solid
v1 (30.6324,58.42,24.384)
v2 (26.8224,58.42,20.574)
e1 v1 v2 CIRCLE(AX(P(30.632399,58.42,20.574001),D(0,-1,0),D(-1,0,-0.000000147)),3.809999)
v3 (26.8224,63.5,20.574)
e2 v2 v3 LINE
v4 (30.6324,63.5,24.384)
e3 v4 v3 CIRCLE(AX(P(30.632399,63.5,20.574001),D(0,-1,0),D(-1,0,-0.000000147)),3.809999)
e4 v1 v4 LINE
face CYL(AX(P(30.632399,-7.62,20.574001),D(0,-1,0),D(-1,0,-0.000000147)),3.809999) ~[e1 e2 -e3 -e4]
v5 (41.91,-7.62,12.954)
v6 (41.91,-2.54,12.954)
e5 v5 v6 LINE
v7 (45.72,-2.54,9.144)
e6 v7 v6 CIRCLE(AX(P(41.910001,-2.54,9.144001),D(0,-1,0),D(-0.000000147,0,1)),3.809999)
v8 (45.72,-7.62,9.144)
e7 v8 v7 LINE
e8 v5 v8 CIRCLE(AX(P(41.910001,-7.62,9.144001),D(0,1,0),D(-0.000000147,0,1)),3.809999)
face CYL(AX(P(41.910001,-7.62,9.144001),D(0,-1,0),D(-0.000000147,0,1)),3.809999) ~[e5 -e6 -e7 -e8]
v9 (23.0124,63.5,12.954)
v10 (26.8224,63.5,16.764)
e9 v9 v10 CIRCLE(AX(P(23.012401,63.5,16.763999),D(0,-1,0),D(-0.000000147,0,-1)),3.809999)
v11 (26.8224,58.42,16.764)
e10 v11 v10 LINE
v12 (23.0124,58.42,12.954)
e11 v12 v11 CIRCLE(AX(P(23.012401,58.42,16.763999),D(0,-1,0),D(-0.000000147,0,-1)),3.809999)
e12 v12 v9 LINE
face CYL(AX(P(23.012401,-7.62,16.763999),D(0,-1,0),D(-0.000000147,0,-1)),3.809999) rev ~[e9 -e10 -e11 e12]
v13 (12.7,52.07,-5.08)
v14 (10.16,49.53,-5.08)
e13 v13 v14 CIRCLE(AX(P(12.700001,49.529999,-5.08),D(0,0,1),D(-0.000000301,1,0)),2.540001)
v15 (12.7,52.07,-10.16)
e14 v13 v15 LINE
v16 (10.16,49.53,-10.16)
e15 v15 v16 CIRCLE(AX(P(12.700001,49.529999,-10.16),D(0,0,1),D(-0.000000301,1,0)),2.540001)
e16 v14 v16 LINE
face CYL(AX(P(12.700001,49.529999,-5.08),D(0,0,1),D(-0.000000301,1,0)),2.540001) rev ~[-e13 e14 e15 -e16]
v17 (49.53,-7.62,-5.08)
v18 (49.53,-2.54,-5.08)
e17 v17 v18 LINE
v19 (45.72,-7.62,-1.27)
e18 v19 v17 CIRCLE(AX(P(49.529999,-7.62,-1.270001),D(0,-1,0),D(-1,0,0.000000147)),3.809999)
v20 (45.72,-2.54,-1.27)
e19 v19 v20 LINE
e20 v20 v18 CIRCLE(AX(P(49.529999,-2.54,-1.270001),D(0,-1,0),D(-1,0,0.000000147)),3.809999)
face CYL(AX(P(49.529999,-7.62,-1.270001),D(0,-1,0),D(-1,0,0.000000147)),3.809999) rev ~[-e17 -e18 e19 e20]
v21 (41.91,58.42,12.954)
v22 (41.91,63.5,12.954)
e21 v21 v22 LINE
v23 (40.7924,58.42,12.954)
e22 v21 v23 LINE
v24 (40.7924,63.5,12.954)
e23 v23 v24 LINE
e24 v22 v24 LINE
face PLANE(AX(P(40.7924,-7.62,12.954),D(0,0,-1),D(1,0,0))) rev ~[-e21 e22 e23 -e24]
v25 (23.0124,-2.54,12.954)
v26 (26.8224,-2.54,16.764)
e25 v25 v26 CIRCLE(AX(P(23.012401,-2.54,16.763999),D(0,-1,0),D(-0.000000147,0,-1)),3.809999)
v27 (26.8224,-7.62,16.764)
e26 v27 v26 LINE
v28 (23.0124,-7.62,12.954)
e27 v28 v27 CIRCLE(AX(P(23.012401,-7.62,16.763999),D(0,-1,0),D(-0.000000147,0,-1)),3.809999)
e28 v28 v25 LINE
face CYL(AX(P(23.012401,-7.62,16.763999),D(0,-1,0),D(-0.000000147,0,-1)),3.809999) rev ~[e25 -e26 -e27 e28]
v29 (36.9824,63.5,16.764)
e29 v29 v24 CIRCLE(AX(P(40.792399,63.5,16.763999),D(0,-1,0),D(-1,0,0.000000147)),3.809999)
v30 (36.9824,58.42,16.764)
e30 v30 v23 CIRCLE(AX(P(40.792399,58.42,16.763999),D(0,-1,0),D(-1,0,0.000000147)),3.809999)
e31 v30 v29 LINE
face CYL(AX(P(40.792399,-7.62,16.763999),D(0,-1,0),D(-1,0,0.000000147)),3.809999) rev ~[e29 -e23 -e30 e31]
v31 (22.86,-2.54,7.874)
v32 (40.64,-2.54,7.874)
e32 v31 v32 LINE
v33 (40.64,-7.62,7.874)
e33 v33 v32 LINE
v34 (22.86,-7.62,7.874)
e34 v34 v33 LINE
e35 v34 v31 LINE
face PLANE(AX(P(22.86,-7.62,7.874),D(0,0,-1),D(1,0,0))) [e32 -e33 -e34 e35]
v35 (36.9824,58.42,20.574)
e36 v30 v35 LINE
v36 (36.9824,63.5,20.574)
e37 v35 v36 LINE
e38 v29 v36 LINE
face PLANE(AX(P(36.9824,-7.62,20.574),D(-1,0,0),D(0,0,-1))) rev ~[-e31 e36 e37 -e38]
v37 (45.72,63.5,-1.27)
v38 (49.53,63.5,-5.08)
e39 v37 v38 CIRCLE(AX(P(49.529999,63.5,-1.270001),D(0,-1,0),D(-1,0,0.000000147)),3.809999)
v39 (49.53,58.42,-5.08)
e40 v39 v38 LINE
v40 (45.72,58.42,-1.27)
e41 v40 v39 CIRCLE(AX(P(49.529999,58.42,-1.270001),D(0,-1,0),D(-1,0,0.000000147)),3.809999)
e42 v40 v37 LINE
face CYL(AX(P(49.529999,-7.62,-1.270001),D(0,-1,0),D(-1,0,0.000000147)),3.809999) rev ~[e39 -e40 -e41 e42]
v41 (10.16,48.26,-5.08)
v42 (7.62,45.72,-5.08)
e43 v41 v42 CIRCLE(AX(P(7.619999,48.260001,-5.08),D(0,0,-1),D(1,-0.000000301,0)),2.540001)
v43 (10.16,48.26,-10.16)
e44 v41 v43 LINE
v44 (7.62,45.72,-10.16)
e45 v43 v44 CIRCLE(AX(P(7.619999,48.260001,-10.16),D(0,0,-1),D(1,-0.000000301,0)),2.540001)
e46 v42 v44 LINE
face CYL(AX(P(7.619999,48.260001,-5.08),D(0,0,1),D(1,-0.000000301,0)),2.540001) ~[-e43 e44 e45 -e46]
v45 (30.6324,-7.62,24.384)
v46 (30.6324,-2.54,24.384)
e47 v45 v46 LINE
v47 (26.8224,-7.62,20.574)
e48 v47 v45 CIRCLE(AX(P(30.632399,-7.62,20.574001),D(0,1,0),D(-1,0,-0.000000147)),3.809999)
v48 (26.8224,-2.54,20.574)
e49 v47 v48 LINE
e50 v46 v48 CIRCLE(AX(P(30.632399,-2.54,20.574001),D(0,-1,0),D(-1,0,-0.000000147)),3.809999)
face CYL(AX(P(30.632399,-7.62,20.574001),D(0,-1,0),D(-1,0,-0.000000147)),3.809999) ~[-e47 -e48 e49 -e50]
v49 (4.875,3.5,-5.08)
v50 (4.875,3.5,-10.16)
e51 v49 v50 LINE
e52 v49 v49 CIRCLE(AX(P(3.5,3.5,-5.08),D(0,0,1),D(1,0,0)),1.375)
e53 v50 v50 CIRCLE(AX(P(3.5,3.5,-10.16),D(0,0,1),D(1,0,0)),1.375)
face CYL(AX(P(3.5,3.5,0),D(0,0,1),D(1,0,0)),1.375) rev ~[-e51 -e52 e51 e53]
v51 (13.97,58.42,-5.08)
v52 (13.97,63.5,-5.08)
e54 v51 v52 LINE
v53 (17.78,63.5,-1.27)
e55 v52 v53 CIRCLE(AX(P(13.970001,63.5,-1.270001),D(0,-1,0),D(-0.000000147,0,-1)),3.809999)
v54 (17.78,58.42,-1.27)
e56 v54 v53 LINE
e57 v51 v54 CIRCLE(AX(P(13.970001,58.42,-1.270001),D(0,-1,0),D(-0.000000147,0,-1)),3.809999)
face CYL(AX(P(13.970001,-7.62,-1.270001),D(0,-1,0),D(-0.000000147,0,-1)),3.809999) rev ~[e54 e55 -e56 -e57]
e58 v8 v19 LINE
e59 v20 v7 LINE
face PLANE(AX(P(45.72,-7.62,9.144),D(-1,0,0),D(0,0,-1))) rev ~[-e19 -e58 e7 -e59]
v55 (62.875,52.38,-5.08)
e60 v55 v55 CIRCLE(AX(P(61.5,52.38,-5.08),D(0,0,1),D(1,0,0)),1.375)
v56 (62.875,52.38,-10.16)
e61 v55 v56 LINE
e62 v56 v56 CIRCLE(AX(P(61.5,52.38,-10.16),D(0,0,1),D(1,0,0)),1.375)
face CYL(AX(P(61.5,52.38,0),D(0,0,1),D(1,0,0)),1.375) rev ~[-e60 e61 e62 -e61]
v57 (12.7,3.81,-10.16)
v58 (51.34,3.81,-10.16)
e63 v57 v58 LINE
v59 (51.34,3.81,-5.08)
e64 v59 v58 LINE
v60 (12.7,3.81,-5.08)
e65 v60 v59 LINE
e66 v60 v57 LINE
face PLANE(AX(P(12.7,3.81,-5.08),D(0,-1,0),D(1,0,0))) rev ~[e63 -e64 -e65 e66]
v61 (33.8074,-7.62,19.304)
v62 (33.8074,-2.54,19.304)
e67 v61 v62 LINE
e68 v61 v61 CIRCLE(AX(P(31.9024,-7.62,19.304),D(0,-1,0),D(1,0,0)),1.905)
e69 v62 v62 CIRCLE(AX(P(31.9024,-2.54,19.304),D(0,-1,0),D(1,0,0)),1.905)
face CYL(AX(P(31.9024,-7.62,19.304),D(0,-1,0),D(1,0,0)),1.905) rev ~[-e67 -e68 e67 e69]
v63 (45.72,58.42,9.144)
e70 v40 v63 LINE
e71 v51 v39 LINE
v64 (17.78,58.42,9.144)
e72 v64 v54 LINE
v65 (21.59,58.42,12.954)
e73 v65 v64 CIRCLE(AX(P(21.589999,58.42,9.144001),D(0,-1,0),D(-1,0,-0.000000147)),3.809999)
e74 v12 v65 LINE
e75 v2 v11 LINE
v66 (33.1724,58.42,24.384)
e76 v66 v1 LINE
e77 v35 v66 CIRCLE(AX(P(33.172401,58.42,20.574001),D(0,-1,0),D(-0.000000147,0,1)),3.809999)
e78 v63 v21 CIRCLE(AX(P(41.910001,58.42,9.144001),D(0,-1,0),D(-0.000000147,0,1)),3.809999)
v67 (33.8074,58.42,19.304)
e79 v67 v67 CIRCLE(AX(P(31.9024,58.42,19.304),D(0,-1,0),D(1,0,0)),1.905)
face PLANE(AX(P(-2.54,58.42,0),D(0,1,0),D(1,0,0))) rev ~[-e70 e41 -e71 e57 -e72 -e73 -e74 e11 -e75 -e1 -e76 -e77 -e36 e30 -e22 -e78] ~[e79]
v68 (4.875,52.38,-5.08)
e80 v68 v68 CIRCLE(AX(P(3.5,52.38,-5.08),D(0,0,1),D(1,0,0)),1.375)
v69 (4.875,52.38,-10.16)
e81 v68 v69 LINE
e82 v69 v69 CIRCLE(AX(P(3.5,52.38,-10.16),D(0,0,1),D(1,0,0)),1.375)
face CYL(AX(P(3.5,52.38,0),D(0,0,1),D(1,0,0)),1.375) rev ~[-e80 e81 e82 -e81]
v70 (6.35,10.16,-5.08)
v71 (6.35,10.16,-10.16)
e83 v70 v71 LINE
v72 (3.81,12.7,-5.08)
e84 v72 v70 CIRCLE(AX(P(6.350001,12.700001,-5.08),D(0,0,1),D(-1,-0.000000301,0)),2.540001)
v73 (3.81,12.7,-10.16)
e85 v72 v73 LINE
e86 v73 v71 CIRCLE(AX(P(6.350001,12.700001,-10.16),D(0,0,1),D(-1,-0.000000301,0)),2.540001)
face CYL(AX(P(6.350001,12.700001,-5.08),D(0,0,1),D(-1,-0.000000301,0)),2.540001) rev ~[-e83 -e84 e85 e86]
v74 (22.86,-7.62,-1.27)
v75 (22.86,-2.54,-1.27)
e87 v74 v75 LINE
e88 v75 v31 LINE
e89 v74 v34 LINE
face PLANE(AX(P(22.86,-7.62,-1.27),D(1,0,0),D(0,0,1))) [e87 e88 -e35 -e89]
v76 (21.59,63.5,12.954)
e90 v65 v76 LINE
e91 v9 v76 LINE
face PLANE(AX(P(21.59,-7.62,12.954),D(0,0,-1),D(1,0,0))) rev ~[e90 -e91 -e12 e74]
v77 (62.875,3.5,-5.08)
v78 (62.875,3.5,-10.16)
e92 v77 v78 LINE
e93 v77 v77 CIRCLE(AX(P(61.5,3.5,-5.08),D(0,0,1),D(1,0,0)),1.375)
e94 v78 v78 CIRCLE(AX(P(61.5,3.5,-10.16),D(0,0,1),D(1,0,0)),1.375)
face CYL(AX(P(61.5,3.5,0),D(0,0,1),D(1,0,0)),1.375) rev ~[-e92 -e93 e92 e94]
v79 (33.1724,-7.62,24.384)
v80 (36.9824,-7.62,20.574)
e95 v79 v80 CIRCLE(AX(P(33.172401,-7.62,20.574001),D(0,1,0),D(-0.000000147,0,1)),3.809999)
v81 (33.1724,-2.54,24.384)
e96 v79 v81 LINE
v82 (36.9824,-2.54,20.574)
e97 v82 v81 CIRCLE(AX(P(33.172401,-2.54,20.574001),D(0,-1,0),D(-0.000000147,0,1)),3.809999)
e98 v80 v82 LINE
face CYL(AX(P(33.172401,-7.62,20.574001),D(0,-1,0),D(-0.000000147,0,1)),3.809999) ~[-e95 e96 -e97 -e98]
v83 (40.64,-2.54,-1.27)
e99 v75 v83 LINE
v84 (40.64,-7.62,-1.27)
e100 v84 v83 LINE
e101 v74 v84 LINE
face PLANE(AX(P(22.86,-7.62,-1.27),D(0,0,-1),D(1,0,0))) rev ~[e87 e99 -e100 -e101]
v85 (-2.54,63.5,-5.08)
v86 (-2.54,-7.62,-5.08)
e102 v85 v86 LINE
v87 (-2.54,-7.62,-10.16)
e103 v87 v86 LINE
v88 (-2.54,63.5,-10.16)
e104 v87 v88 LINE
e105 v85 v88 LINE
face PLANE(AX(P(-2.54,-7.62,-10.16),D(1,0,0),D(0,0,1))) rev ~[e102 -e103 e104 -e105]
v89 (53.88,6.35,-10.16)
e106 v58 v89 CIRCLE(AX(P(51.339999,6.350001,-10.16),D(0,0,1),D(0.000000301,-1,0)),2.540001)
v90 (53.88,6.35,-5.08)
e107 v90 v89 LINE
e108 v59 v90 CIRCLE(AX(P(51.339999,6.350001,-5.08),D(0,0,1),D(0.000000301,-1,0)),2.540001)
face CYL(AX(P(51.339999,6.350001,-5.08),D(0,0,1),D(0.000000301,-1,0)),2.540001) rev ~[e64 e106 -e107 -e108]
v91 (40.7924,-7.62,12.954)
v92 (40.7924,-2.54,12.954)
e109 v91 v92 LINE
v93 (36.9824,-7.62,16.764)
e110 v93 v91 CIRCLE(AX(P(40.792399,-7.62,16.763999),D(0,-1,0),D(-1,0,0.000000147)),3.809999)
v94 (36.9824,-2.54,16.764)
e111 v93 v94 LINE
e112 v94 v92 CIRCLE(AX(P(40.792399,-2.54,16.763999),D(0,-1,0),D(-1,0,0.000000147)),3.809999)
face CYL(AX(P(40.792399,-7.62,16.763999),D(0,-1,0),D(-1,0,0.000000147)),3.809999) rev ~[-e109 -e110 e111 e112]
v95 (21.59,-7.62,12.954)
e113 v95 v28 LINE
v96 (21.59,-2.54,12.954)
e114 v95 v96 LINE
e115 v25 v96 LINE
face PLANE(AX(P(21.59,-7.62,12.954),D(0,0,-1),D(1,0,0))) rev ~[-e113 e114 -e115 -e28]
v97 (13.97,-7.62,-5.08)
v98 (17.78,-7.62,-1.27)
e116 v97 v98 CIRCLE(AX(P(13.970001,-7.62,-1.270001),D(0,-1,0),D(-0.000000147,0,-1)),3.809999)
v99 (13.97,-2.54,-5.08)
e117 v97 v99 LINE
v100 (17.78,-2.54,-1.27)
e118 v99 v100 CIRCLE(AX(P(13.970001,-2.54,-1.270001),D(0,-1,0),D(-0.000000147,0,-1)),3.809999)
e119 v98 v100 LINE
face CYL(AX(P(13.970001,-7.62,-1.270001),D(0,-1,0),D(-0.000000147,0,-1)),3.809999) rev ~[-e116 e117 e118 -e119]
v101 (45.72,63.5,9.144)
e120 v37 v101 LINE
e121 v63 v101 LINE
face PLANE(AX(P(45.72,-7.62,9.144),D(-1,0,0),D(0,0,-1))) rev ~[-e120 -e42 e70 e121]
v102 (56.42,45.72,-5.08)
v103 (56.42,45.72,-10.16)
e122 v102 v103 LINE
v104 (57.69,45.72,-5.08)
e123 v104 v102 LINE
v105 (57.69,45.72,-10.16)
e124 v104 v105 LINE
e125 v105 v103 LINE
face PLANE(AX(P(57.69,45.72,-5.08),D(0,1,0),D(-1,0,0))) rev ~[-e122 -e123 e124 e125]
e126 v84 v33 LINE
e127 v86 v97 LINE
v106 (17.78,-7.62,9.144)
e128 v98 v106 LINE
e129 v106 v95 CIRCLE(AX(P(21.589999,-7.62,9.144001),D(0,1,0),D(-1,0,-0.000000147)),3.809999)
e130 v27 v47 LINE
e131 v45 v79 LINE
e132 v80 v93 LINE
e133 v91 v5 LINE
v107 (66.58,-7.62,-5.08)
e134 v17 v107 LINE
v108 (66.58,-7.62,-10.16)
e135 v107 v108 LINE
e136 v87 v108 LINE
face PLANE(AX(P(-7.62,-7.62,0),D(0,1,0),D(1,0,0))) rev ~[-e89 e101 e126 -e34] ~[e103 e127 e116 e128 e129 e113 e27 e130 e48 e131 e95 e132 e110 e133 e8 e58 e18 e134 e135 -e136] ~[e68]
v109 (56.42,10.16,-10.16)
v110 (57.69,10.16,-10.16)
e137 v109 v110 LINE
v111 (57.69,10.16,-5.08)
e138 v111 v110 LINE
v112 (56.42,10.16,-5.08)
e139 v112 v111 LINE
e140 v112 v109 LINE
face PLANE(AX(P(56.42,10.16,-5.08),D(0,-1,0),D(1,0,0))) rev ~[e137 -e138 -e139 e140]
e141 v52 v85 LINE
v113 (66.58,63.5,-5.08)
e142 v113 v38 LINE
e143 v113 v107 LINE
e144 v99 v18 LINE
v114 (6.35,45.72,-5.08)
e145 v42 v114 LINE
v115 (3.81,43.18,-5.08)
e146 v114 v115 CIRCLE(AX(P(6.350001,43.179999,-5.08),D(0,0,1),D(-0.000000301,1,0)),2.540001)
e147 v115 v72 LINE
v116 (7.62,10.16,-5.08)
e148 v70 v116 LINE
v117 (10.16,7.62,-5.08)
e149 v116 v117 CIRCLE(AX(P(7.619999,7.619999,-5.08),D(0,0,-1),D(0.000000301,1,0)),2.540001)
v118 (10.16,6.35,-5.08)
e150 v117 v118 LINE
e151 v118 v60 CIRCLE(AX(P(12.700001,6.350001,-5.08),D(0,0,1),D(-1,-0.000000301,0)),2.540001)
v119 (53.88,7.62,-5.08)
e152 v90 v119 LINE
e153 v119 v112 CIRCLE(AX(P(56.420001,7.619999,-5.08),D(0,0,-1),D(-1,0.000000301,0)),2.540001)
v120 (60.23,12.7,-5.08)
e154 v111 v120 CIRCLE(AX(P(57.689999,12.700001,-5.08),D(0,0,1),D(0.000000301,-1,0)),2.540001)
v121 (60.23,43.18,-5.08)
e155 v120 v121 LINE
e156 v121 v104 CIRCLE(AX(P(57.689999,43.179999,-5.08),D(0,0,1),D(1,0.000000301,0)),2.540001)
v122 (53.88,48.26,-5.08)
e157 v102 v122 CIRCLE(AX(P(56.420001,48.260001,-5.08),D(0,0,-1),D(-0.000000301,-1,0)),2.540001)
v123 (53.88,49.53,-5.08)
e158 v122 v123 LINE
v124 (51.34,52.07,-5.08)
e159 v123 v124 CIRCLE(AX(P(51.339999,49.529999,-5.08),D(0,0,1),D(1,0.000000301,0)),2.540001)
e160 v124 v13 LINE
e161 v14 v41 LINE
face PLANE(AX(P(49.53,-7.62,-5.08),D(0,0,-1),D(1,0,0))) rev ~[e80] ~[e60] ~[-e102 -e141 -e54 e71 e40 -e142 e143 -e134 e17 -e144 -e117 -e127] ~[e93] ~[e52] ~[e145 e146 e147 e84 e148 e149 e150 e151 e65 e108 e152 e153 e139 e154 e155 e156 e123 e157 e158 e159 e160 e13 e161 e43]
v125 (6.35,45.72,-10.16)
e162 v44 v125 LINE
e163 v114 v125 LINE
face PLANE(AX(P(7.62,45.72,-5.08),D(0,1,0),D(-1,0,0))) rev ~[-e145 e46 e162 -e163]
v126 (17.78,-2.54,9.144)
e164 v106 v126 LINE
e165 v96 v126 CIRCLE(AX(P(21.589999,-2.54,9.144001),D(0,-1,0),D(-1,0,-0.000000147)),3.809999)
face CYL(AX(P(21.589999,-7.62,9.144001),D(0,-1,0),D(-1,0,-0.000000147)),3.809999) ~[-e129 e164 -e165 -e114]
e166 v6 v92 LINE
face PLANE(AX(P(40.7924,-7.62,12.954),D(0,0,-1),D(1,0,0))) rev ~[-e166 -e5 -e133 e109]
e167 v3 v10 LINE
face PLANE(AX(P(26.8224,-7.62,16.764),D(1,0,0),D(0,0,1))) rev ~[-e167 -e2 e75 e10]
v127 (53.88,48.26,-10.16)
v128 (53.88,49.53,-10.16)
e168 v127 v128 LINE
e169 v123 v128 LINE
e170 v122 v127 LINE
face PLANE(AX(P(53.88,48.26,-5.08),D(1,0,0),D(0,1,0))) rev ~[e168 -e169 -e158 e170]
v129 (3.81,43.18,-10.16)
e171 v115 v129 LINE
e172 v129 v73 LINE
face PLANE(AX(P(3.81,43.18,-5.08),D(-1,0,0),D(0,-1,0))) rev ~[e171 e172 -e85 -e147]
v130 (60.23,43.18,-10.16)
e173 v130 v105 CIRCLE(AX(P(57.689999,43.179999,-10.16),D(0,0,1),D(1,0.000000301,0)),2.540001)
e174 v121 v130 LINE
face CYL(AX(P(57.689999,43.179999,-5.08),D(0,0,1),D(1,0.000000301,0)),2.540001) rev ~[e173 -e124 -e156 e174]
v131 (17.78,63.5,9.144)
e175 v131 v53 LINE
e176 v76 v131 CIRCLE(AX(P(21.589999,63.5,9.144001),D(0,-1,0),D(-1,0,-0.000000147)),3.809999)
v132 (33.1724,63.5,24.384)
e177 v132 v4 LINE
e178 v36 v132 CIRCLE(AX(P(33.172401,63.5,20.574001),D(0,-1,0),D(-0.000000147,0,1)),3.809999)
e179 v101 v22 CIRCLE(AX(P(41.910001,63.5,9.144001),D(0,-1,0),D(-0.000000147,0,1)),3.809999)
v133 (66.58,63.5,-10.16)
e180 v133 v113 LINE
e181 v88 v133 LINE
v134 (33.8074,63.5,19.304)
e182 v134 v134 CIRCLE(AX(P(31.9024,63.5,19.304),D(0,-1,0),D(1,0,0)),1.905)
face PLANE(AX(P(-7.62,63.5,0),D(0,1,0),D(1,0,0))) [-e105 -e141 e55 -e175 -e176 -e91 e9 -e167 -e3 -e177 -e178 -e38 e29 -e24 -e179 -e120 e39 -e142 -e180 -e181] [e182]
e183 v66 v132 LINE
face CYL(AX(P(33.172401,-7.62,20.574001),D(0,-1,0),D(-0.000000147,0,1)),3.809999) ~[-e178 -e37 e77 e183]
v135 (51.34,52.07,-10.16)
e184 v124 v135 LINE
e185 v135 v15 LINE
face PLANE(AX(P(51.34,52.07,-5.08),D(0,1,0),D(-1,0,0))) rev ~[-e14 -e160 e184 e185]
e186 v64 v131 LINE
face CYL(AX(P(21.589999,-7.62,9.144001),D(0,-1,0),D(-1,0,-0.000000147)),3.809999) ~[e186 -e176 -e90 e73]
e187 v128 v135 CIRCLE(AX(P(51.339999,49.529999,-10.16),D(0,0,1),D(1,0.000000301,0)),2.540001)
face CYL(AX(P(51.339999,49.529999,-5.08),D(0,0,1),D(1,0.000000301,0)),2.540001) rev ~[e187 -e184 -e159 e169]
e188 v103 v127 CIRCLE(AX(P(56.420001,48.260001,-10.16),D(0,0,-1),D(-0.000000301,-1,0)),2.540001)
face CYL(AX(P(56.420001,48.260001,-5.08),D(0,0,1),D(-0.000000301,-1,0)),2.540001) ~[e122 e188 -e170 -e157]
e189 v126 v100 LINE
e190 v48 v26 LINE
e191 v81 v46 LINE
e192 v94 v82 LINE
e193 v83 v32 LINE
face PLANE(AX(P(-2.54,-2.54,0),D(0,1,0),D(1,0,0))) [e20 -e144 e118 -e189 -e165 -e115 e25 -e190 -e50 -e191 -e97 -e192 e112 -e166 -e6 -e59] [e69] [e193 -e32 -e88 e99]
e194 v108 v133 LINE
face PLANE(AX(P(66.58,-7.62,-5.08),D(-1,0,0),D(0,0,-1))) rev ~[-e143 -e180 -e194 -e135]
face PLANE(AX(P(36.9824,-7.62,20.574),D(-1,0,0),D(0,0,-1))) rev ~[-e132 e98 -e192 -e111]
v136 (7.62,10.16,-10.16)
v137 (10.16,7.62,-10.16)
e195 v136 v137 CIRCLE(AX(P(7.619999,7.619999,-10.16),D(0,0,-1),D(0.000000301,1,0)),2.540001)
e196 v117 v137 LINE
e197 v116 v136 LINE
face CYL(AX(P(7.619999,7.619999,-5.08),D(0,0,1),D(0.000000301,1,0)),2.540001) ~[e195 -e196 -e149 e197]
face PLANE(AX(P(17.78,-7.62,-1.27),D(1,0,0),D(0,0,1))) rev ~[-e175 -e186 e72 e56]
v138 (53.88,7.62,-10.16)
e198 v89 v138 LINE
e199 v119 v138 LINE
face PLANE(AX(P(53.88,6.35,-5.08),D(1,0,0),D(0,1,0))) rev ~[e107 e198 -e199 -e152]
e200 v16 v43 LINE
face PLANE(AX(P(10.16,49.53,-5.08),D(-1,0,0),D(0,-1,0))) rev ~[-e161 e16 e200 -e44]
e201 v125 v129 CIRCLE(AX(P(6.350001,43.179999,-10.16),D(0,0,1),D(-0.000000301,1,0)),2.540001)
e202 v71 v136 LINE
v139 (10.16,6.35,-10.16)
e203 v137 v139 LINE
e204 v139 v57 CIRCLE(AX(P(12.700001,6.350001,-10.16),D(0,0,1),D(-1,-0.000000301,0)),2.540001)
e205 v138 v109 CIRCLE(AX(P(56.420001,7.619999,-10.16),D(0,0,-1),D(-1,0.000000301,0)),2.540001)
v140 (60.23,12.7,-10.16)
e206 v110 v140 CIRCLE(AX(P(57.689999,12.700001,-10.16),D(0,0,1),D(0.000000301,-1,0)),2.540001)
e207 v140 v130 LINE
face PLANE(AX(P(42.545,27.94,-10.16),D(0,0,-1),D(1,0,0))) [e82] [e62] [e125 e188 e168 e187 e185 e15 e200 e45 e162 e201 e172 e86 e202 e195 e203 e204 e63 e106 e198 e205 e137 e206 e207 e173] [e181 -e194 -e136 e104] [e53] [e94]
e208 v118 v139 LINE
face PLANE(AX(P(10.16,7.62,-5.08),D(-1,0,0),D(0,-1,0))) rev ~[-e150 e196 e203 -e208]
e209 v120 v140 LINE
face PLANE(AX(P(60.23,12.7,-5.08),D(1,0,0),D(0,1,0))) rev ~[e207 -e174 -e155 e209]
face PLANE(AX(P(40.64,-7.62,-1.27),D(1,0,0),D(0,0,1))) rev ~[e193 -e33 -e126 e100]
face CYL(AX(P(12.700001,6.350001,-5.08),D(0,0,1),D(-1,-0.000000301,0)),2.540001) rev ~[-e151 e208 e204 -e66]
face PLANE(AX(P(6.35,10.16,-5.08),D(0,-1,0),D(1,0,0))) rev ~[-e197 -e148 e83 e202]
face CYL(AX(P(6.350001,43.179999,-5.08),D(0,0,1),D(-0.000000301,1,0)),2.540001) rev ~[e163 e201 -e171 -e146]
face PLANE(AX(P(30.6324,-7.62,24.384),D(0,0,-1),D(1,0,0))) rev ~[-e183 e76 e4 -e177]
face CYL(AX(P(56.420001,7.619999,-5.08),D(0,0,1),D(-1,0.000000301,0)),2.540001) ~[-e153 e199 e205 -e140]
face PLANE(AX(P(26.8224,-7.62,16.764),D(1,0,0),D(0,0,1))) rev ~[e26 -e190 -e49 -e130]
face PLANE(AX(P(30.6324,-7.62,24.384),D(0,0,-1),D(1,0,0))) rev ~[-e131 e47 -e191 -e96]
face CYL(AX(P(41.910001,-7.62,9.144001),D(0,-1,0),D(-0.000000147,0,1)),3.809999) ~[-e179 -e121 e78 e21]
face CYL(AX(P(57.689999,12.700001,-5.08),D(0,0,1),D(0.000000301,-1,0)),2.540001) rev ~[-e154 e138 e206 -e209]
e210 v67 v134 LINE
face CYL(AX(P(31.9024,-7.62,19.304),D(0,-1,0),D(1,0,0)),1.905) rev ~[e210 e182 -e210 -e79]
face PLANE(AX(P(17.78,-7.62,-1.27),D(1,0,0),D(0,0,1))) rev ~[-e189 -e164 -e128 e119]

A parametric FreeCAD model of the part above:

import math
import FreeCAD as App
import Part
import Sketcher

V = App.Vector
Q = App.Units.Quantity

doc = App.newDocument("Part")
params = doc.addObject("Spreadsheet::Sheet", "Params")
for row, (alias, value) in enumerate([
    ("sketch1_height", "2.8 in"),
    ("sketch1_height2", "2.4 in"),
    ("sketch1_width", "3.95 in"),
    ("sketch1_width2", "3.55 in"),
    ("pad1_length", "0.2 in"),
    ("sketch2_height", "2.8 in"),
    ("sketch2_width", "3.95 in"),
    ("pad2_length", "0.2 in"),
    ("pocket1_length", "1 in"),
    ("pad3_length", "0.14 in"),
    ("sketch5_height", "2.8 in"),
    ("sketch5_height2", "2.4 in"),
    ("sketch5_width", "3.95 in"),
    ("sketch5_width2", "3.55 in"),
    ("pad4_length", "1.48 in"),
    ("sketch6_width", "0.54 in"),
    ("sketch6_height", "0.14 in"),
    ("pocket2_length", "0.2 in"),
    ("sketch7_width", "0.7 in"),
    ("sketch7_width2", "0.42 in"),
    ("sketch7_width3", "0.37 in"),
    ("sketch7_height", "0.36 in"),
    ("sketch7_height2", "0.35 in"),
    ("pocket3_length", "0.2 in"),
    ("sketch8_width", "2.119 in"),
    ("sketch8_height", "0.715 in"),
    ("pocket4_length", "0.2 in"),
    ("sketch9_diameter", "0.15 in"),
    ("sketch10_radius", "0.15 in"),
    ("sketch10_width", "0.2 in"),
    ("sketch10_width2", "0.1 in"),
    ("sketch10_width3", "3.95 in"),
    ("sketch10_width4", "0.65 in"),
    ("sketch11_radius", "0.1 in"),
    ("sketch11_height", "1.2 in"),
    ("sketch11_width", "0.05 in"),
], start=1):
    params.set(f"A{row}", alias)
    params.set(f"B{row}", "=" + value)
    params.setAlias(f"B{row}", alias)

body = doc.addObject("PartDesign::Body", "Body")

# Sketch on XY plane
sketch1 = doc.addObject("Sketcher::SketchObject", "Sketch")
body.addObject(sketch1)
sketch1.AttachmentSupport = (doc.XY_Plane, [""])
sketch1.MapMode = "FlatFace"
sketch1.addGeometry([
    Part.LineSegment(V(-7.62, 63.5, 0), V(-7.62, -7.62, 0)),  # 0
    Part.LineSegment(V(-7.62, -7.62, 0), V(92.71, -7.62, 0)),  # 1
    Part.LineSegment(V(92.71, -7.62, 0), V(92.71, 63.5, 0)),  # 2
    Part.LineSegment(V(92.71, 63.5, 0), V(-7.62, 63.5, 0)),  # 3
    Part.LineSegment(V(87.63, -2.54, 0), V(-2.54, -2.54, 0)),  # 4
    Part.LineSegment(V(-2.54, -2.54, 0), V(-2.54, 58.42, 0)),  # 5
    Part.LineSegment(V(-2.54, 58.42, 0), V(87.63, 58.42, 0)),  # 6
    Part.LineSegment(V(87.63, 58.42, 0), V(87.63, -2.54, 0)),  # 7
], False)
sketch1.addConstraint([
    Sketcher.Constraint("Coincident", 0, 2, 1, 1),
    Sketcher.Constraint("Coincident", 1, 2, 2, 1),
    Sketcher.Constraint("Coincident", 2, 2, 3, 1),
    Sketcher.Constraint("Coincident", 3, 2, 0, 1),
    Sketcher.Constraint("Coincident", 4, 2, 5, 1),
    Sketcher.Constraint("Coincident", 5, 2, 6, 1),
    Sketcher.Constraint("Coincident", 6, 2, 7, 1),
    Sketcher.Constraint("Coincident", 7, 2, 4, 1),
    Sketcher.Constraint("Vertical", 0),
    Sketcher.Constraint("Horizontal", 1),
    Sketcher.Constraint("Vertical", 2),
    Sketcher.Constraint("Horizontal", 3),
    Sketcher.Constraint("Horizontal", 4),
    Sketcher.Constraint("Vertical", 5),
    Sketcher.Constraint("Horizontal", 6),
    Sketcher.Constraint("Vertical", 7),
    Sketcher.Constraint("DistanceY", 0, 2, 0, 1, Q("2.8 in")),
    Sketcher.Constraint("DistanceY", 5, 1, 5, 2, Q("2.4 in")),
    Sketcher.Constraint("DistanceX", 1, 1, 1, 2, Q("3.95 in")),
    Sketcher.Constraint("DistanceX", 4, 2, 4, 1, Q("3.55 in")),
    Sketcher.Constraint("DistanceX", 0, 2, -1, 1, Q("0.3 in")),
    Sketcher.Constraint("DistanceY", 0, 2, -1, 1, Q("0.3 in")),
    Sketcher.Constraint("DistanceX", 4, 2, -1, 1, Q("0.1 in")),
    Sketcher.Constraint("DistanceY", 4, 2, -1, 1, Q("0.1 in")),
])
sketch1.setExpression("Constraints[16]", "Params.sketch1_height")
sketch1.setExpression("Constraints[17]", "Params.sketch1_height2")
sketch1.setExpression("Constraints[18]", "Params.sketch1_width")
sketch1.setExpression("Constraints[19]", "Params.sketch1_width2")
pad1 = doc.addObject("PartDesign::Pad", "Pad")
body.addObject(pad1)
pad1.Profile = sketch1
pad1.setExpression("Length", "Params.pad1_length")
pad1.Reversed = True

# Sketch on XY plane
sketch2 = doc.addObject("Sketcher::SketchObject", "Sketch001")
body.addObject(sketch2)
sketch2.AttachmentSupport = (doc.XY_Plane, [""])
sketch2.MapMode = "FlatFace"
sketch2.AttachmentOffset = App.Placement(V(0, 0, -0.2 * 25.4), App.Rotation())
sketch2.addGeometry([
    Part.LineSegment(V(-7.62, -7.62, 0), V(-7.62, 63.5, 0)),
    Part.LineSegment(V(-7.62, 63.5, 0), V(92.71, 63.5, 0)),
    Part.LineSegment(V(92.71, 63.5, 0), V(92.71, -7.62, 0)),
    Part.LineSegment(V(92.71, -7.62, 0), V(-7.62, -7.62, 0)),
], False)
sketch2.addConstraint([
    Sketcher.Constraint("Coincident", 0, 2, 1, 1),
    Sketcher.Constraint("Coincident", 1, 2, 2, 1),
    Sketcher.Constraint("Coincident", 2, 2, 3, 1),
    Sketcher.Constraint("Coincident", 3, 2, 0, 1),
    Sketcher.Constraint("Vertical", 0),
    Sketcher.Constraint("Horizontal", 1),
    Sketcher.Constraint("Vertical", 2),
    Sketcher.Constraint("Horizontal", 3),
    Sketcher.Constraint("DistanceY", 0, 1, 0, 2, Q("2.8 in")),
    Sketcher.Constraint("DistanceX", 1, 1, 1, 2, Q("3.95 in")),
    Sketcher.Constraint("DistanceX", 0, 2, -1, 1, Q("0.3 in")),
    Sketcher.Constraint("DistanceY", -1, 1, 0, 2, Q("2.5 in")),
])
sketch2.setExpression("Constraints[8]", "Params.sketch2_height")
sketch2.setExpression("Constraints[9]", "Params.sketch2_width")
pad2 = doc.addObject("PartDesign::Pad", "Pad001")
body.addObject(pad2)
pad2.Profile = sketch2
pad2.setExpression("Length", "Params.pad2_length")
pad2.Reversed = True

# Sketch on XY plane
sketch3 = doc.addObject("Sketcher::SketchObject", "Sketch002")
body.addObject(sketch3)
sketch3.AttachmentSupport = (doc.XY_Plane, [""])
sketch3.MapMode = "FlatFace"
sketch3.addGeometry([
    Part.Circle(V(3.5, 52.38, 0), V(0, 0, 1), 1.375),
    Part.Circle(V(61.5, 52.38, 0), V(0, 0, 1), 1.375),
    Part.Circle(V(61.5, 3.5, 0), V(0, 0, 1), 1.375),
    Part.Circle(V(3.5, 3.5, 0), V(0, 0, 1), 1.375),
], False)
sketch3.addConstraint([
    Sketcher.Constraint("Equal", 0, 1),
    Sketcher.Constraint("Equal", 1, 2),
    Sketcher.Constraint("Equal", 2, 3),
    Sketcher.Constraint("Horizontal", 0, 3, 1, 3),
    Sketcher.Constraint("Horizontal", 2, 3, 3, 3),
    Sketcher.Constraint("Vertical", 1, 3, 2, 3),
    Sketcher.Constraint("Vertical", 0, 3, 3, 3),
    Sketcher.Constraint("Diameter", 0, Q("2.75 mm")),
    Sketcher.Constraint("DistanceX", -1, 1, 0, 3, Q("3.5 mm")),
    Sketcher.Constraint("DistanceY", -1, 1, 0, 3, Q("52.38 mm")),
    Sketcher.Constraint("DistanceX", -1, 1, 1, 3, Q("61.5 mm")),
    Sketcher.Constraint("DistanceY", -1, 1, 2, 3, Q("3.5 mm")),
])
pocket1 = doc.addObject("PartDesign::Pocket", "Pocket")
body.addObject(pocket1)
pocket1.Profile = sketch3
pocket1.setExpression("Length", "Params.pocket1_length")

# Sketch on XY plane
sketch4 = doc.addObject("Sketcher::SketchObject", "Sketch003")
body.addObject(sketch4)
sketch4.AttachmentSupport = (doc.XY_Plane, [""])
sketch4.MapMode = "FlatFace"
sketch4.AttachmentOffset = App.Placement(V(0, 0, -0.2 * 25.4), App.Rotation())
sketch4.addGeometry([
    Part.Circle(V(3.5, 52.38, 0), V(0, 0, 1), 3.1),  # 0
    Part.Circle(V(3.5, 52.38, 0), V(0, 0, 1), 1.375),  # 1
    Part.Circle(V(61.5, 52.38, 0), V(0, 0, 1), 3.1),  # 2
    Part.Circle(V(61.5, 52.38, 0), V(0, 0, 1), 1.375),  # 3
    Part.Circle(V(61.5, 3.5, 0), V(0, 0, 1), 3.1),  # 4
    Part.Circle(V(61.5, 3.5, 0), V(0, 0, 1), 1.375),  # 5
    Part.Circle(V(3.5, 3.5, 0), V(0, 0, 1), 3.1),  # 6
    Part.Circle(V(3.5, 3.5, 0), V(0, 0, 1), 1.375),  # 7
], False)
sketch4.addConstraint([
    Sketcher.Constraint("Coincident", 1, 3, 0, 3),
    Sketcher.Constraint("Coincident", 3, 3, 2, 3),
    Sketcher.Constraint("Coincident", 5, 3, 4, 3),
    Sketcher.Constraint("Coincident", 7, 3, 6, 3),
    Sketcher.Constraint("Equal", 0, 2),
    Sketcher.Constraint("Equal", 1, 3),
    Sketcher.Constraint("Equal", 2, 4),
    Sketcher.Constraint("Equal", 3, 5),
    Sketcher.Constraint("Equal", 4, 6),
    Sketcher.Constraint("Equal", 5, 7),
    Sketcher.Constraint("Horizontal", 1, 3, 2, 3),
    Sketcher.Constraint("Horizontal", 5, 3, 6, 3),
    Sketcher.Constraint("Vertical", 3, 3, 4, 3),
    Sketcher.Constraint("Vertical", 1, 3, 6, 3),
    Sketcher.Constraint("Diameter", 0, Q("6.2 mm")),
    Sketcher.Constraint("Diameter", 1, Q("2.75 mm")),
    Sketcher.Constraint("DistanceX", -1, 1, 0, 3, Q("3.5 mm")),
    Sketcher.Constraint("DistanceY", -1, 1, 0, 3, Q("52.38 mm")),
    Sketcher.Constraint("DistanceX", -1, 1, 2, 3, Q("61.5 mm")),
    Sketcher.Constraint("DistanceY", -1, 1, 4, 3, Q("3.5 mm")),
])
pad3 = doc.addObject("PartDesign::Pad", "Pad002")
body.addObject(pad3)
pad3.Profile = sketch4
pad3.setExpression("Length", "Params.pad3_length")

# Sketch on XY plane
sketch5 = doc.addObject("Sketcher::SketchObject", "Sketch004")
body.addObject(sketch5)
sketch5.AttachmentSupport = (doc.XY_Plane, [""])
sketch5.MapMode = "FlatFace"
sketch5.addGeometry([
    Part.LineSegment(V(-7.62, 63.5, 0), V(-7.62, -7.62, 0)),  # 0
    Part.LineSegment(V(-7.62, -7.62, 0), V(92.71, -7.62, 0)),  # 1
    Part.LineSegment(V(92.71, -7.62, 0), V(92.71, 63.5, 0)),  # 2
    Part.LineSegment(V(92.71, 63.5, 0), V(-7.62, 63.5, 0)),  # 3
    Part.LineSegment(V(87.63, -2.54, 0), V(-2.54, -2.54, 0)),  # 4
    Part.LineSegment(V(-2.54, -2.54, 0), V(-2.54, 58.42, 0)),  # 5
    Part.LineSegment(V(-2.54, 58.42, 0), V(87.63, 58.42, 0)),  # 6
    Part.LineSegment(V(87.63, 58.42, 0), V(87.63, -2.54, 0)),  # 7
], False)
sketch5.addConstraint([
    Sketcher.Constraint("Coincident", 0, 2, 1, 1),
    Sketcher.Constraint("Coincident", 1, 2, 2, 1),
    Sketcher.Constraint("Coincident", 2, 2, 3, 1),
    Sketcher.Constraint("Coincident", 3, 2, 0, 1),
    Sketcher.Constraint("Coincident", 4, 2, 5, 1),
    Sketcher.Constraint("Coincident", 5, 2, 6, 1),
    Sketcher.Constraint("Coincident", 6, 2, 7, 1),
    Sketcher.Constraint("Coincident", 7, 2, 4, 1),
    Sketcher.Constraint("Vertical", 0),
    Sketcher.Constraint("Horizontal", 1),
    Sketcher.Constraint("Vertical", 2),
    Sketcher.Constraint("Horizontal", 3),
    Sketcher.Constraint("Horizontal", 4),
    Sketcher.Constraint("Vertical", 5),
    Sketcher.Constraint("Horizontal", 6),
    Sketcher.Constraint("Vertical", 7),
    Sketcher.Constraint("DistanceY", 0, 2, 0, 1, Q("2.8 in")),
    Sketcher.Constraint("DistanceY", 5, 1, 5, 2, Q("2.4 in")),
    Sketcher.Constraint("DistanceX", 1, 1, 1, 2, Q("3.95 in")),
    Sketcher.Constraint("DistanceX", 4, 2, 4, 1, Q("3.55 in")),
    Sketcher.Constraint("DistanceX", 0, 2, -1, 1, Q("0.3 in")),
    Sketcher.Constraint("DistanceY", 0, 2, -1, 1, Q("0.3 in")),
    Sketcher.Constraint("DistanceX", 4, 2, -1, 1, Q("0.1 in")),
    Sketcher.Constraint("DistanceY", 4, 2, -1, 1, Q("0.1 in")),
])
sketch5.setExpression("Constraints[16]", "Params.sketch5_height")
sketch5.setExpression("Constraints[17]", "Params.sketch5_height2")
sketch5.setExpression("Constraints[18]", "Params.sketch5_width")
sketch5.setExpression("Constraints[19]", "Params.sketch5_width2")
pad4 = doc.addObject("PartDesign::Pad", "Pad003")
body.addObject(pad4)
pad4.Profile = sketch5
pad4.setExpression("Length", "Params.pad4_length")

# Sketch on YZ plane
sketch6 = doc.addObject("Sketcher::SketchObject", "Sketch005")
body.addObject(sketch6)
sketch6.AttachmentSupport = (doc.YZ_Plane, [""])
sketch6.MapMode = "FlatFace"
sketch6.AttachmentOffset = App.Placement(V(0, 0, -0.3 * 25.4), App.Rotation())
sketch6.addGeometry([
    Part.LineSegment(V(34.798, -0.254, 0), V(34.798, -3.81, 0)),
    Part.LineSegment(V(34.798, -3.81, 0), V(21.082, -3.81, 0)),
    Part.LineSegment(V(21.082, -3.81, 0), V(21.082, -0.254, 0)),
    Part.LineSegment(V(21.082, -0.254, 0), V(34.798, -0.254, 0)),
], False)
sketch6.addConstraint([
    Sketcher.Constraint("Coincident", 0, 2, 1, 1),
    Sketcher.Constraint("Coincident", 1, 2, 2, 1),
    Sketcher.Constraint("Coincident", 2, 2, 3, 1),
    Sketcher.Constraint("Coincident", 3, 2, 0, 1),
    Sketcher.Constraint("Vertical", 0),
    Sketcher.Constraint("Horizontal", 1),
    Sketcher.Constraint("Vertical", 2),
    Sketcher.Constraint("Horizontal", 3),
    Sketcher.Constraint("DistanceX", 1, 2, 1, 1, Q("0.54 in")),
    Sketcher.Constraint("DistanceY", 0, 2, 0, 1, Q("0.14 in")),
    Sketcher.Constraint("DistanceX", -1, 1, 0, 2, Q("1.37 in")),
    Sketcher.Constraint("DistanceY", 0, 2, -1, 1, Q("0.15 in")),
])
sketch6.setExpression("Constraints[8]", "Params.sketch6_width")
sketch6.setExpression("Constraints[9]", "Params.sketch6_height")
pocket2 = doc.addObject("PartDesign::Pocket", "Pocket001")
body.addObject(pocket2)
pocket2.Profile = sketch6
pocket2.setExpression("Length", "Params.pocket2_length")
pocket2.Reversed = True

# Sketch on XZ plane
sketch7 = doc.addObject("Sketcher::SketchObject", "Sketch006")
body.addObject(sketch7)
sketch7.AttachmentSupport = (doc.XZ_Plane, [""])
sketch7.MapMode = "FlatFace"
sketch7.AttachmentOffset = App.Placement(V(0, 0, 0.3 * 25.4), App.Rotation())
sketch7.addGeometry([
    Part.LineSegment(V(5.588, 4.445, 0), V(5.588, -1.27, 0)),  # 0
    Part.LineSegment(V(5.588, -1.27, 0), V(16.256, -1.27, 0)),  # 1
    Part.LineSegment(V(16.256, -1.27, 0), V(16.256, 4.445, 0)),  # 2
    Part.LineSegment(V(16.256, 4.445, 0), V(5.588, 4.445, 0)),  # 3
    Part.LineSegment(V(22.86, 7.874, 0), V(22.86, -1.27, 0)),  # 4
    Part.LineSegment(V(22.86, -1.27, 0), V(40.64, -1.27, 0)),  # 5
    Part.LineSegment(V(40.64, -1.27, 0), V(40.64, 7.874, 0)),  # 6
    Part.LineSegment(V(40.64, 7.874, 0), V(22.86, 7.874, 0)),  # 7
    Part.LineSegment(V(48.895, 7.62, 0), V(48.895, -1.27, 0)),  # 8
    Part.LineSegment(V(48.895, -1.27, 0), V(58.293, -1.27, 0)),  # 9
    Part.LineSegment(V(58.293, -1.27, 0), V(58.293, 7.62, 0)),  # 10
    Part.LineSegment(V(58.293, 7.62, 0), V(48.895, 7.62, 0)),  # 11
], False)
sketch7.addConstraint([
    Sketcher.Constraint("Coincident", 0, 2, 1, 1),
    Sketcher.Constraint("Coincident", 1, 2, 2, 1),
    Sketcher.Constraint("Coincident", 2, 2, 3, 1),
    Sketcher.Constraint("Coincident", 3, 2, 0, 1),
    Sketcher.Constraint("Coincident", 4, 2, 5, 1),
    Sketcher.Constraint("Coincident", 5, 2, 6, 1),
    Sketcher.Constraint("Coincident", 6, 2, 7, 1),
    Sketcher.Constraint("Coincident", 7, 2, 4, 1),
    Sketcher.Constraint("Coincident", 8, 2, 9, 1),
    Sketcher.Constraint("Coincident", 9, 2, 10, 1),
    Sketcher.Constraint("Coincident", 10, 2, 11, 1),
    Sketcher.Constraint("Coincident", 11, 2, 8, 1),
    Sketcher.Constraint("Vertical", 0),
    Sketcher.Constraint("Horizontal", 1),
    Sketcher.Constraint("Vertical", 2),
    Sketcher.Constraint("Horizontal", 3),
    Sketcher.Constraint("Vertical", 4),
    Sketcher.Constraint("Horizontal", 5),
    Sketcher.Constraint("Vertical", 6),
    Sketcher.Constraint("Horizontal", 7),
    Sketcher.Constraint("Vertical", 8),
    Sketcher.Constraint("Horizontal", 9),
    Sketcher.Constraint("Vertical", 10),
    Sketcher.Constraint("Horizontal", 11),
    Sketcher.Constraint("Horizontal", 1, 2, 4, 2),
    Sketcher.Constraint("Horizontal", 5, 2, 8, 2),
    Sketcher.Constraint("DistanceX", 5, 1, 5, 2, Q("0.7 in")),
    Sketcher.Constraint("DistanceX", 1, 1, 1, 2, Q("0.42 in")),
    Sketcher.Constraint("DistanceX", 9, 1, 9, 2, Q("0.37 in")),
    Sketcher.Constraint("DistanceY", 4, 2, 4, 1, Q("0.36 in")),
    Sketcher.Constraint("DistanceY", 8, 2, 8, 1, Q("0.35 in")),
    Sketcher.Constraint("DistanceX", -1, 1, 4, 2, Q("0.9 in")),
    Sketcher.Constraint("DistanceY", -1, 1, 10, 2, Q("0.3 in")),
    Sketcher.Constraint("DistanceY", 0, 2, 0, 1, Q("0.225 in")),
    Sketcher.Constraint("DistanceX", -1, 1, 0, 2, Q("0.22 in")),
    Sketcher.Constraint("DistanceX", -1, 1, 8, 2, Q("1.925 in")),
])
sketch7.setExpression("Constraints[26]", "Params.sketch7_width")
sketch7.setExpression("Constraints[27]", "Params.sketch7_width2")
sketch7.setExpression("Constraints[28]", "Params.sketch7_width3")
sketch7.setExpression("Constraints[29]", "Params.sketch7_height")
sketch7.setExpression("Constraints[30]", "Params.sketch7_height2")
pocket3 = doc.addObject("PartDesign::Pocket", "Pocket002")
body.addObject(pocket3)
pocket3.Profile = sketch7
pocket3.setExpression("Length", "Params.pocket3_length")

# Sketch on YZ plane
sketch8 = doc.addObject("Sketcher::SketchObject", "Sketch007")
body.addObject(sketch8)
sketch8.AttachmentSupport = (doc.YZ_Plane, [""])
sketch8.MapMode = "FlatFace"
sketch8.AttachmentOffset = App.Placement(V(0, 0, 3.65 * 25.4), App.Rotation())
sketch8.addGeometry([
    Part.LineSegment(V(1.905, 16.891, 0), V(1.905, -1.27, 0)),
    Part.LineSegment(V(1.905, -1.27, 0), V(55.7276, -1.27, 0)),
    Part.LineSegment(V(55.7276, -1.27, 0), V(55.7276, 16.891, 0)),
    Part.LineSegment(V(55.7276, 16.891, 0), V(1.905, 16.891, 0)),
], False)
sketch8.addConstraint([
    Sketcher.Constraint("Coincident", 0, 2, 1, 1),
    Sketcher.Constraint("Coincident", 1, 2, 2, 1),
    Sketcher.Constraint("Coincident", 2, 2, 3, 1),
    Sketcher.Constraint("Coincident", 3, 2, 0, 1),
    Sketcher.Constraint("Vertical", 0),
    Sketcher.Constraint("Horizontal", 1),
    Sketcher.Constraint("Vertical", 2),
    Sketcher.Constraint("Horizontal", 3),
    Sketcher.Constraint("DistanceX", 1, 1, 1, 2, Q("2.119 in")),
    Sketcher.Constraint("DistanceY", 0, 2, 0, 1, Q("0.715 in")),
    Sketcher.Constraint("DistanceY", 0, 2, -1, 1, Q("0.05 in")),
    Sketcher.Constraint("DistanceX", -1, 1, 0, 2, Q("0.075 in")),
])
sketch8.setExpression("Constraints[8]", "Params.sketch8_width")
sketch8.setExpression("Constraints[9]", "Params.sketch8_height")
pocket4 = doc.addObject("PartDesign::Pocket", "Pocket003")
body.addObject(pocket4)
pocket4.Profile = sketch8
pocket4.setExpression("Length", "Params.pocket4_length")

# Sketch on XZ plane
sketch9 = doc.addObject("Sketcher::SketchObject", "Sketch008")
body.addObject(sketch9)
sketch9.AttachmentSupport = (doc.XZ_Plane, [""])
sketch9.MapMode = "FlatFace"
sketch9.AttachmentOffset = App.Placement(V(0, 0, 0.3 * 25.4), App.Rotation())
sketch9.addGeometry(Part.Circle(V(31.9024, 19.304, 0), V(0, 0, 1), 1.905), False)
sketch9.addConstraint([
    Sketcher.Constraint("Diameter", 0, Q("0.15 in")),
    Sketcher.Constraint("DistanceY", -1, 1, 0, 3, Q("0.76 in")),
    Sketcher.Constraint("DistanceX", -1, 1, 0, 3, Q("1.256 in")),
])
sketch9.setExpression("Constraints[0]", "Params.sketch9_diameter")
pocket5 = doc.addObject("PartDesign::Pocket", "Pocket004")
body.addObject(pocket5)
pocket5.Profile = sketch9
pocket5.Type = "ThroughAll"

# Sketch on XZ plane
sketch10 = doc.addObject("Sketcher::SketchObject", "Sketch009")
body.addObject(sketch10)
sketch10.AttachmentSupport = (doc.XZ_Plane, [""])
sketch10.MapMode = "FlatFace"
sketch10.AttachmentOffset = App.Placement(V(0, 0, 0.3 * 25.4), App.Rotation())
sketch10.addGeometry([
    Part.LineSegment(V(66.58, -5.08, 0), V(66.58, -10.16, 0)),  # 0
    Part.LineSegment(V(66.58, -10.16, 0), V(92.71, -10.16, 0)),  # 1
    Part.LineSegment(V(92.71, -10.16, 0), V(92.71, 37.592, 0)),  # 2
    Part.LineSegment(V(92.71, 37.592, 0), V(-7.62, 37.592, 0)),  # 3
    Part.LineSegment(V(-7.62, 37.592, 0), V(-7.62, -10.16, 0)),  # 4
    Part.LineSegment(V(-7.62, -10.16, 0), V(-2.54, -10.16, 0)),  # 5
    Part.LineSegment(V(-2.54, -10.16, 0), V(-2.54, -5.08, 0)),  # 6
    Part.LineSegment(V(-2.54, -5.08, 0), V(13.97, -5.08, 0)),  # 7
    Part.ArcOfCircle(Part.Circle(V(13.970001, -1.270001, 0), V(0, 0, 1), 3.809999), math.radians(-90.000008), math.radians(0.000008)),  # 8
    Part.LineSegment(V(17.78, -1.27, 0), V(17.78, 9.144, 0)),  # 9
    Part.ArcOfCircle(Part.Circle(V(21.589999, 9.144001, 0), V(0, 0, 1), 3.809999), math.radians(89.999992), math.radians(180.000008)),  # 10
    Part.LineSegment(V(21.59, 12.954, 0), V(23.0124, 12.954, 0)),  # 11
    Part.ArcOfCircle(Part.Circle(V(23.012401, 16.763999, 0), V(0, 0, 1), 3.809999), math.radians(-90.000008), math.radians(0.000008)),  # 12
    Part.LineSegment(V(26.8224, 16.764, 0), V(26.8224, 20.574, 0)),  # 13
    Part.ArcOfCircle(Part.Circle(V(30.632399, 20.574001, 0), V(0, 0, 1), 3.809999), math.radians(89.999992), math.radians(180.000008)),  # 14
    Part.LineSegment(V(30.6324, 24.384, 0), V(33.1724, 24.384, 0)),  # 15
    Part.ArcOfCircle(Part.Circle(V(33.172401, 20.574001, 0), V(0, 0, 1), 3.809999), math.radians(-0.000008), math.radians(90.000008)),  # 16
    Part.LineSegment(V(36.9824, 20.574, 0), V(36.9824, 16.764, 0)),  # 17
    Part.ArcOfCircle(Part.Circle(V(40.792399, 16.763999, 0), V(0, 0, 1), 3.809999), math.radians(179.999992), math.radians(270.000008)),  # 18
    Part.LineSegment(V(40.7924, 12.954, 0), V(41.91, 12.954, 0)),  # 19
    Part.ArcOfCircle(Part.Circle(V(41.910001, 9.144001, 0), V(0, 0, 1), 3.809999), math.radians(-0.000008), math.radians(90.000008)),  # 20
    Part.LineSegment(V(45.72, 9.144, 0), V(45.72, -1.27, 0)),  # 21
    Part.ArcOfCircle(Part.Circle(V(49.529999, -1.270001, 0), V(0, 0, 1), 3.809999), math.radians(179.999992), math.radians(270.000008)),  # 22
    Part.LineSegment(V(49.53, -5.08, 0), V(66.58, -5.08, 0)),  # 23
], False)
sketch10.addConstraint([
    Sketcher.Constraint("Coincident", 0, 2, 1, 1),
    Sketcher.Constraint("Coincident", 1, 2, 2, 1),
    Sketcher.Constraint("Coincident", 2, 2, 3, 1),
    Sketcher.Constraint("Coincident", 3, 2, 4, 1),
    Sketcher.Constraint("Coincident", 4, 2, 5, 1),
    Sketcher.Constraint("Coincident", 5, 2, 6, 1),
    Sketcher.Constraint("Coincident", 6, 2, 7, 1),
    Sketcher.Constraint("Tangent", 7, 2, 8, 1),
    Sketcher.Constraint("Tangent", 8, 2, 9, 1),
    Sketcher.Constraint("Tangent", 9, 2, 10, 2),
    Sketcher.Constraint("Tangent", 10, 1, 11, 1),
    Sketcher.Constraint("Tangent", 11, 2, 12, 1),
    Sketcher.Constraint("Tangent", 12, 2, 13, 1),
    Sketcher.Constraint("Tangent", 13, 2, 14, 2),
    Sketcher.Constraint("Tangent", 14, 1, 15, 1),
    Sketcher.Constraint("Tangent", 15, 2, 16, 2),
    Sketcher.Constraint("Tangent", 16, 1, 17, 1),
    Sketcher.Constraint("Tangent", 17, 2, 18, 1),
    Sketcher.Constraint("Tangent", 18, 2, 19, 1),
    Sketcher.Constraint("Tangent", 19, 2, 20, 2),
    Sketcher.Constraint("Tangent", 20, 1, 21, 1),
    Sketcher.Constraint("Tangent", 21, 2, 22, 1),
    Sketcher.Constraint("Tangent", 22, 2, 23, 1),
    Sketcher.Constraint("Coincident", 23, 2, 0, 1),
    Sketcher.Constraint("Vertical", 0),
    Sketcher.Constraint("Horizontal", 1),
    Sketcher.Constraint("Vertical", 2),
    Sketcher.Constraint("Horizontal", 3),
    Sketcher.Constraint("Vertical", 4),
    Sketcher.Constraint("Horizontal", 5),
    Sketcher.Constraint("Vertical", 6),
    Sketcher.Constraint("Horizontal", 7),
    Sketcher.Constraint("Vertical", 9),
    Sketcher.Constraint("Horizontal", 11),
    Sketcher.Constraint("Vertical", 13),
    Sketcher.Constraint("Horizontal", 15),
    Sketcher.Constraint("Vertical", 17),
    Sketcher.Constraint("Horizontal", 19),
    Sketcher.Constraint("Vertical", 21),
    Sketcher.Constraint("Horizontal", 23),
    Sketcher.Constraint("Equal", 8, 10),
    Sketcher.Constraint("Equal", 10, 12),
    Sketcher.Constraint("Equal", 12, 14),
    Sketcher.Constraint("Equal", 14, 16),
    Sketcher.Constraint("Equal", 16, 18),
    Sketcher.Constraint("Equal", 18, 20),
    Sketcher.Constraint("Equal", 20, 22),
    Sketcher.Constraint("Horizontal", 12, 3, 18, 3),
    Sketcher.Constraint("Horizontal", 8, 3, 22, 3),
    Sketcher.Constraint("Horizontal", 1, 2, 4, 2),
    Sketcher.Constraint("Equal", 5, 0),
    Sketcher.Constraint("Radius", 8, Q("0.15 in")),
    Sketcher.Constraint("DistanceX", 5, 1, 5, 2, Q("0.2 in")),
    Sketcher.Constraint("DistanceX", 15, 1, 15, 2, Q("0.1 in")),
    Sketcher.Constraint("DistanceX", 20, 3, 1, 2, Q("2 in")),
    Sketcher.Constraint("DistanceX", 3, 2, 3, 1, Q("3.95 in")),
    Sketcher.Constraint("DistanceX", 7, 1, 7, 2, Q("0.65 in")),
    Sketcher.Constraint("DistanceY", 2, 1, 2, 2, Q("1.88 in")),
    Sketcher.Constraint("DistanceY", 9, 1, 9, 2, Q("0.41 in")),
    Sketcher.Constraint("DistanceY", 13, 1, 13, 2, Q("0.15 in")),
    Sketcher.Constraint("DistanceY", 0, 2, -1, 1, Q("0.4 in")),
    Sketcher.Constraint("DistanceX", 3, 2, -1, 1, Q("0.3 in")),
    Sketcher.Constraint("DistanceX", 11, 1, 11, 2, Q("0.056 in")),
    Sketcher.Constraint("DistanceX", 1, 1, 1, 2, Q("26.13 mm")),
])
sketch10.setExpression("Constraints[51]", "Params.sketch10_radius")
sketch10.setExpression("Constraints[52]", "Params.sketch10_width")
sketch10.setExpression("Constraints[53]", "Params.sketch10_width2")
sketch10.setExpression("Constraints[55]", "Params.sketch10_width3")
sketch10.setExpression("Constraints[56]", "Params.sketch10_width4")
pocket6 = doc.addObject("PartDesign::Pocket", "Pocket005")
body.addObject(pocket6)
pocket6.Profile = sketch10
pocket6.Type = "ThroughAll"

# Sketch on XY plane
sketch11 = doc.addObject("Sketcher::SketchObject", "Sketch010")
body.addObject(sketch11)
sketch11.AttachmentSupport = (doc.XY_Plane, [""])
sketch11.MapMode = "FlatFace"
sketch11.AttachmentOffset = App.Placement(V(0, 0, -0.2 * 25.4), App.Rotation())
sketch11.addGeometry([
    Part.LineSegment(V(56.42, 10.16, 0), V(57.69, 10.16, 0)),  # 0
    Part.ArcOfCircle(Part.Circle(V(57.689999, 12.700001, 0), V(0, 0, 1), 2.540001), math.radians(-89.999983), math.radians(-0.000017)),  # 1
    Part.LineSegment(V(60.23, 12.7, 0), V(60.23, 43.18, 0)),  # 2
    Part.ArcOfCircle(Part.Circle(V(57.689999, 43.179999, 0), V(0, 0, 1), 2.540001), math.radians(0.000017), math.radians(89.999983)),  # 3
    Part.LineSegment(V(57.69, 45.72, 0), V(56.42, 45.72, 0)),  # 4
    Part.ArcOfCircle(Part.Circle(V(56.420001, 48.260001, 0), V(0, 0, 1), 2.540001), math.radians(-179.999983), math.radians(-90.000017)),  # 5
    Part.LineSegment(V(53.88, 48.26, 0), V(53.88, 49.53, 0)),  # 6
    Part.ArcOfCircle(Part.Circle(V(51.339999, 49.529999, 0), V(0, 0, 1), 2.540001), math.radians(0.000017), math.radians(89.999983)),  # 7
    Part.LineSegment(V(51.34, 52.07, 0), V(12.7, 52.07, 0)),  # 8
    Part.ArcOfCircle(Part.Circle(V(12.700001, 49.529999, 0), V(0, 0, 1), 2.540001), math.radians(90.000017), math.radians(179.999983)),  # 9
    Part.LineSegment(V(10.16, 49.53, 0), V(10.16, 48.26, 0)),  # 10
    Part.ArcOfCircle(Part.Circle(V(7.619999, 48.260001, 0), V(0, 0, 1), 2.540001), math.radians(-89.999983), math.radians(-0.000017)),  # 11
    Part.LineSegment(V(7.62, 45.72, 0), V(6.35, 45.72, 0)),  # 12
    Part.ArcOfCircle(Part.Circle(V(6.350001, 43.179999, 0), V(0, 0, 1), 2.540001), math.radians(90.000017), math.radians(179.999983)),  # 13
    Part.LineSegment(V(3.81, 43.18, 0), V(3.81, 12.7, 0)),  # 14
    Part.ArcOfCircle(Part.Circle(V(6.350001, 12.700001, 0), V(0, 0, 1), 2.540001), math.radians(-179.999983), math.radians(-90.000017)),  # 15
    Part.LineSegment(V(6.35, 10.16, 0), V(7.62, 10.16, 0)),  # 16
    Part.ArcOfCircle(Part.Circle(V(7.619999, 7.619999, 0), V(0, 0, 1), 2.540001), math.radians(0.000017), math.radians(89.999983)),  # 17
    Part.LineSegment(V(10.16, 7.62, 0), V(10.16, 6.35, 0)),  # 18
    Part.ArcOfCircle(Part.Circle(V(12.700001, 6.350001, 0), V(0, 0, 1), 2.540001), math.radians(-179.999983), math.radians(-90.000017)),  # 19
    Part.LineSegment(V(12.7, 3.81, 0), V(51.34, 3.81, 0)),  # 20
    Part.ArcOfCircle(Part.Circle(V(51.339999, 6.350001, 0), V(0, 0, 1), 2.540001), math.radians(-89.999983), math.radians(-0.000017)),  # 21
    Part.LineSegment(V(53.88, 6.35, 0), V(53.88, 7.62, 0)),  # 22
    Part.ArcOfCircle(Part.Circle(V(56.420001, 7.619999, 0), V(0, 0, 1), 2.540001), math.radians(90.000017), math.radians(179.999983)),  # 23
], False)
sketch11.addConstraint([
    Sketcher.Constraint("Tangent", 0, 2, 1, 1),
    Sketcher.Constraint("Tangent", 1, 2, 2, 1),
    Sketcher.Constraint("Tangent", 2, 2, 3, 1),
    Sketcher.Constraint("Tangent", 3, 2, 4, 1),
    Sketcher.Constraint("Tangent", 4, 2, 5, 2),
    Sketcher.Constraint("Tangent", 5, 1, 6, 1),
    Sketcher.Constraint("Tangent", 6, 2, 7, 1),
    Sketcher.Constraint("Tangent", 7, 2, 8, 1),
    Sketcher.Constraint("Tangent", 8, 2, 9, 1),
    Sketcher.Constraint("Tangent", 9, 2, 10, 1),
    Sketcher.Constraint("Tangent", 10, 2, 11, 2),
    Sketcher.Constraint("Tangent", 11, 1, 12, 1),
    Sketcher.Constraint("Tangent", 12, 2, 13, 1),
    Sketcher.Constraint("Tangent", 13, 2, 14, 1),
    Sketcher.Constraint("Tangent", 14, 2, 15, 1),
    Sketcher.Constraint("Tangent", 15, 2, 16, 1),
    Sketcher.Constraint("Tangent", 16, 2, 17, 2),
    Sketcher.Constraint("Tangent", 17, 1, 18, 1),
    Sketcher.Constraint("Tangent", 18, 2, 19, 1),
    Sketcher.Constraint("Tangent", 19, 2, 20, 1),
    Sketcher.Constraint("Tangent", 20, 2, 21, 1),
    Sketcher.Constraint("Tangent", 21, 2, 22, 1),
    Sketcher.Constraint("Tangent", 22, 2, 23, 2),
    Sketcher.Constraint("Tangent", 23, 1, 0, 1),
    Sketcher.Constraint("Horizontal", 0),
    Sketcher.Constraint("Vertical", 2),
    Sketcher.Constraint("Horizontal", 4),
    Sketcher.Constraint("Vertical", 6),
    Sketcher.Constraint("Horizontal", 8),
    Sketcher.Constraint("Vertical", 10),
    Sketcher.Constraint("Horizontal", 12),
    Sketcher.Constraint("Vertical", 14),
    Sketcher.Constraint("Horizontal", 16),
    Sketcher.Constraint("Vertical", 18),
    Sketcher.Constraint("Horizontal", 20),
    Sketcher.Constraint("Vertical", 22),
    Sketcher.Constraint("Equal", 1, 3),
    Sketcher.Constraint("Equal", 3, 5),
    Sketcher.Constraint("Equal", 5, 7),
    Sketcher.Constraint("Equal", 7, 9),
    Sketcher.Constraint("Equal", 9, 11),
    Sketcher.Constraint("Equal", 11, 13),
    Sketcher.Constraint("Equal", 13, 15),
    Sketcher.Constraint("Equal", 15, 17),
    Sketcher.Constraint("Equal", 17, 19),
    Sketcher.Constraint("Equal", 19, 21),
    Sketcher.Constraint("Equal", 21, 23),
    Sketcher.Constraint("Horizontal", 5, 3, 11, 3),
    Sketcher.Constraint("Horizontal", 1, 3, 15, 3),
    Sketcher.Constraint("Vertical", 11, 3, 17, 3),
    Sketcher.Constraint("Vertical", 7, 3, 21, 3),
    Sketcher.Constraint("Equal", 4, 12),
    Sketcher.Constraint("Equal", 16, 6),
    Sketcher.Constraint("Equal", 10, 18),
    Sketcher.Constraint("Radius", 1, Q("0.1 in")),
    Sketcher.Constraint("DistanceY", 2, 1, 2, 2, Q("1.2 in")),
    Sketcher.Constraint("DistanceX", 0, 1, 0, 2, Q("0.05 in")),
    Sketcher.Constraint("DistanceY", -1, 1, 1, 3, Q("0.5 in")),
    Sketcher.Constraint("DistanceX", -1, 1, 9, 3, Q("0.5 in")),
    Sketcher.Constraint("DistanceX", 8, 2, 8, 1, Q("38.64 mm")),
])
sketch11.setExpression("Constraints[54]", "Params.sketch11_radius")
sketch11.setExpression("Constraints[55]", "Params.sketch11_height")
sketch11.setExpression("Constraints[56]", "Params.sketch11_width")
pocket7 = doc.addObject("PartDesign::Pocket", "Pocket006")
body.addObject(pocket7)
pocket7.Profile = sketch11
pocket7.Type = "ThroughAll"

doc.recompute()
